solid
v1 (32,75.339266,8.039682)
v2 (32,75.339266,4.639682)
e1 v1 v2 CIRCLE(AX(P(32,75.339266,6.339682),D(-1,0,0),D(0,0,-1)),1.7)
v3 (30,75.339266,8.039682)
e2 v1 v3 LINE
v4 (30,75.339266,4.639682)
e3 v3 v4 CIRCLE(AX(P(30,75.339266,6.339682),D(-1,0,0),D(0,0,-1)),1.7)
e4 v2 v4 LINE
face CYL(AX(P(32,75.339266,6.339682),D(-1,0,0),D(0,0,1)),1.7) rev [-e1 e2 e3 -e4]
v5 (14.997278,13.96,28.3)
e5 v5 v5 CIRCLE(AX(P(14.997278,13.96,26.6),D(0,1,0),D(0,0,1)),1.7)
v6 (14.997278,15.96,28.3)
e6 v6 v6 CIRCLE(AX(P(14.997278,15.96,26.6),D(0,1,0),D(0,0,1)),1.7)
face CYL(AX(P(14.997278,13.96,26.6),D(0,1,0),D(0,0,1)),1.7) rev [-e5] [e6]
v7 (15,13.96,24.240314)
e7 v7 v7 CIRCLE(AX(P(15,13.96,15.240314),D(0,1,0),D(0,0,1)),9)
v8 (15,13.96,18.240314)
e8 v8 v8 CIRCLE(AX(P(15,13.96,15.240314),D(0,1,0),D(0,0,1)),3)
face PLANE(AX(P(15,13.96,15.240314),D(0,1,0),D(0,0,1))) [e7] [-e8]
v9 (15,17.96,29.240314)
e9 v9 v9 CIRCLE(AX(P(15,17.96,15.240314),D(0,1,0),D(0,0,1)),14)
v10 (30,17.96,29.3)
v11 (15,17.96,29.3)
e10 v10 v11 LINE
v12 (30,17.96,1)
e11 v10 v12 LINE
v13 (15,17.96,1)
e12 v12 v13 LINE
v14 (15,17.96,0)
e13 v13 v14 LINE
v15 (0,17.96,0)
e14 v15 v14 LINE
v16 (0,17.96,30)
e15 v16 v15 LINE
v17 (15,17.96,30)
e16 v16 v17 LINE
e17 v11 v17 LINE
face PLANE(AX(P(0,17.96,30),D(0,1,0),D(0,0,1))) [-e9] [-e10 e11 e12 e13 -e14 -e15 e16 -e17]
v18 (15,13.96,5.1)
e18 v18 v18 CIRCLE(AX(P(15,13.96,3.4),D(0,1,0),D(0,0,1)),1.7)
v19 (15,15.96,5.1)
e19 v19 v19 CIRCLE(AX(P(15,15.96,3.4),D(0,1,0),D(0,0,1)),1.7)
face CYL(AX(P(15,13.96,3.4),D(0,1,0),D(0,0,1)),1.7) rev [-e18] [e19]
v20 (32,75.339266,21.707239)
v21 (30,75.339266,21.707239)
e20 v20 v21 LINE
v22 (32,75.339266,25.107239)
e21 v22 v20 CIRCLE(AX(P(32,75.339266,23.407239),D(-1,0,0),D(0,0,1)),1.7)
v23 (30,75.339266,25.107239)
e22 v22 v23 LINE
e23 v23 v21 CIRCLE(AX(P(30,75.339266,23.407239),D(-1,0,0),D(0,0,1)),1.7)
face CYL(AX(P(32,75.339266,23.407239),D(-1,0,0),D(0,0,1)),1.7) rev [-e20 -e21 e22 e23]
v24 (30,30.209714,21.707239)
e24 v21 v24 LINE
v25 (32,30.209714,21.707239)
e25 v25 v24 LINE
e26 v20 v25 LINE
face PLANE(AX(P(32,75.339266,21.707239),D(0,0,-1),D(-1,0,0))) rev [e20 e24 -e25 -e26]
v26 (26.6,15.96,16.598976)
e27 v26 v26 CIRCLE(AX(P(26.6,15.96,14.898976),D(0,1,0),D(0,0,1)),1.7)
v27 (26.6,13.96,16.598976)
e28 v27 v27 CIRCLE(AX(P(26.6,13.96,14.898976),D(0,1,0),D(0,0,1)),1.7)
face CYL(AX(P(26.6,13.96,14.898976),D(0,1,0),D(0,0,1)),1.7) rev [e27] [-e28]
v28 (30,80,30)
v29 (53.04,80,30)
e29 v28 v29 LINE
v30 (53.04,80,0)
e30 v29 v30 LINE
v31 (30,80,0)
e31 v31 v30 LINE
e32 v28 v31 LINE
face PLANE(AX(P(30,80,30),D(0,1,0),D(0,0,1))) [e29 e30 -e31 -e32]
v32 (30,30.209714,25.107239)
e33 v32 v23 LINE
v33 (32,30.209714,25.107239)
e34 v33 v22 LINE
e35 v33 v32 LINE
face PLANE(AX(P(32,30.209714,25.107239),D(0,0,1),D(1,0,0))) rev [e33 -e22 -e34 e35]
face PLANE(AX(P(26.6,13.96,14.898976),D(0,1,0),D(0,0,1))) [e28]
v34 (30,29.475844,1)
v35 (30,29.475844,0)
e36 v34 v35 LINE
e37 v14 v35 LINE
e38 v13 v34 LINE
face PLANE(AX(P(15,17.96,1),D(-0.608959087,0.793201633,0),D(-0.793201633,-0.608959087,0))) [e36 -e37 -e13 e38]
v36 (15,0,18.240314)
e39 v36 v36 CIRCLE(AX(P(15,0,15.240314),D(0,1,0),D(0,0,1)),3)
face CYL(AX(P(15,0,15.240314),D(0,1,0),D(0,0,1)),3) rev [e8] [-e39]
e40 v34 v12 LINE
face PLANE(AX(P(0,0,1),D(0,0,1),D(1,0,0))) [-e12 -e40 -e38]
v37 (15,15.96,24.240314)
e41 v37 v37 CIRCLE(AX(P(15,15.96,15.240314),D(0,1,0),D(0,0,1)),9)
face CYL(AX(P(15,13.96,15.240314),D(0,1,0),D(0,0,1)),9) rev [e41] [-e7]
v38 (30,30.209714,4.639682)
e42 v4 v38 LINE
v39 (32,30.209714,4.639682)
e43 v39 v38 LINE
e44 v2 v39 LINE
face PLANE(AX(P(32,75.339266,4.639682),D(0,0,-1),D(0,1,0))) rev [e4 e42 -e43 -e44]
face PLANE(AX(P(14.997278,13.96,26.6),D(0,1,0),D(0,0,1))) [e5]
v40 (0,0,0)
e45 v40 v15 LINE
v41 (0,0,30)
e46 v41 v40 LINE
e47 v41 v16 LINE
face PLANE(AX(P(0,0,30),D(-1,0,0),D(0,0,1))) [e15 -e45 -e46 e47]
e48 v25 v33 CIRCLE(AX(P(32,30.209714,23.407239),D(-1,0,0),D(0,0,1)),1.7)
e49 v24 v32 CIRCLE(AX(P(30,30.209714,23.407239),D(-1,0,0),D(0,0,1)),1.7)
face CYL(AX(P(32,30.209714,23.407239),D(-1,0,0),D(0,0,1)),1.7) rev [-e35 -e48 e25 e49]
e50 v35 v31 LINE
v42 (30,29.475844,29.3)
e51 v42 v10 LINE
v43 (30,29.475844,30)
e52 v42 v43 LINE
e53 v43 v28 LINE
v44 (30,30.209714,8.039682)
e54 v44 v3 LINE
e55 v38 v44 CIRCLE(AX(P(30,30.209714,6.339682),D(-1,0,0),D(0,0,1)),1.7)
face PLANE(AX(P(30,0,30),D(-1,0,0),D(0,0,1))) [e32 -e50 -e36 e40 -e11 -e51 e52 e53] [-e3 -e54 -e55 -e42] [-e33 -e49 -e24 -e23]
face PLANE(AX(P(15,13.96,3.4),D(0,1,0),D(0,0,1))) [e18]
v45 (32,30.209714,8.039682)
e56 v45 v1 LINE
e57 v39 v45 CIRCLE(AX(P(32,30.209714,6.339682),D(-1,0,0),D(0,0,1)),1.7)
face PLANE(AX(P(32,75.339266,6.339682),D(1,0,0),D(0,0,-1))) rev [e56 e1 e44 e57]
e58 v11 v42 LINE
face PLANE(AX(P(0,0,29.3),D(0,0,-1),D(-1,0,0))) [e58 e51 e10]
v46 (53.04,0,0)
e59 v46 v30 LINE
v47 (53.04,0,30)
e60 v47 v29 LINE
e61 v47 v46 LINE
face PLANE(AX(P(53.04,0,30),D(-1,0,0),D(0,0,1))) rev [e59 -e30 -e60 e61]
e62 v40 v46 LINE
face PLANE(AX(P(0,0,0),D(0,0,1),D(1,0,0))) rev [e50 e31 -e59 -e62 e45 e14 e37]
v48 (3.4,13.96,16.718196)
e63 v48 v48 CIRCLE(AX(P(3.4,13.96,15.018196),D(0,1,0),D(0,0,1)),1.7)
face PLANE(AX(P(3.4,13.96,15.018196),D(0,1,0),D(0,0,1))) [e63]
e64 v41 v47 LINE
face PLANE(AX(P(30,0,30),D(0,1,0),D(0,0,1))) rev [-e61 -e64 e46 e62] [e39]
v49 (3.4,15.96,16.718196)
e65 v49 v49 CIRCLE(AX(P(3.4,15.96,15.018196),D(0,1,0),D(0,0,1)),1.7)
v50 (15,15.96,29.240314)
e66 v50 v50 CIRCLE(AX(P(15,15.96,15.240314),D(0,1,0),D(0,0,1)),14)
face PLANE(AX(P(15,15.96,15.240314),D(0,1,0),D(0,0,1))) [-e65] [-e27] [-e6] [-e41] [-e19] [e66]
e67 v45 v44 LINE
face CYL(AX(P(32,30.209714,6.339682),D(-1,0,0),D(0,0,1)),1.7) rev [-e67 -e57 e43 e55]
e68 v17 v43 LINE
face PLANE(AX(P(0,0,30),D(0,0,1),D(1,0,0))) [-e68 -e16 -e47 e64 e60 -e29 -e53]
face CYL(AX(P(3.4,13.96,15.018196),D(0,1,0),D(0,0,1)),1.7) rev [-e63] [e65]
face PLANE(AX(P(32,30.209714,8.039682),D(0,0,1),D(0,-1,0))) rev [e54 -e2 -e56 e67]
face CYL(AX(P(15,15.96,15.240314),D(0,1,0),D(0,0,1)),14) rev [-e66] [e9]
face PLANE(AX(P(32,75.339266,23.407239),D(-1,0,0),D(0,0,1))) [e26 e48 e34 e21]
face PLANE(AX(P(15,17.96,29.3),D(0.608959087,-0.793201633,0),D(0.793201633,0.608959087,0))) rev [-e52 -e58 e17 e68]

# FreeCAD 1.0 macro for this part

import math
import FreeCAD as App
import Part
import Sketcher
Q = App.Units.Quantity

doc = App.newDocument("Part")
params = doc.addObject("Spreadsheet::Sheet", "Params")
for row, (alias, value) in enumerate([
    ("sketch1_width", "30 mm"),
    ("sketch1_height", "80 mm"),
    ("sketch1_width2", "53.04 mm"),
    ("sketch1_height2", "17.96 mm"),
    ("pad1_length", "30 mm"),
    ("sketch2_diameter", "28 mm"),
    ("pocket1_length", "2 mm"),
    ("sketch3_diameter", "3.4 mm"),
    ("pocket2_length", "2 mm"),
    ("sketch4_diameter", "18 mm"),
    ("pocket3_length", "2 mm"),
    ("sketch5_diameter", "6 mm"),
    ("sketch6_radius", "1.7 mm"),
    ("pocket5_length", "2 mm"),
    ("sketch7_width", "15 mm"),
    ("pad2_length", "1 mm"),
    ("sketch8_length", "10 mm"),
    ("pad3_length", "0.7 mm"),
], start=1):
    params.set(f"A{row}", alias)
    params.set(f"B{row}", "=" + value)
    params.setAlias(f"B{row}", alias)

body = doc.addObject("PartDesign::Body", "Body")

sketch1 = body.newObject("Sketcher::SketchObject", "Sketch")
sketch1.AttachmentSupport = (doc.getObject("XY_Plane"), [""])
sketch1.MapMode = "FlatFace"
sketch1.addGeometry(Part.LineSegment(App.Vector(0, 17.96, 0), App.Vector(0, 0, 0)), False)
sketch1.addGeometry(Part.LineSegment(App.Vector(0, 0, 0), App.Vector(53.04, 0, 0)), False)
sketch1.addGeometry(Part.LineSegment(App.Vector(53.04, 0, 0), App.Vector(53.04, 80, 0)), False)
sketch1.addGeometry(Part.LineSegment(App.Vector(53.04, 80, 0), App.Vector(30, 80, 0)), False)
sketch1.addGeometry(Part.LineSegment(App.Vector(30, 80, 0), App.Vector(30, 17.96, 0)), False)
sketch1.addGeometry(Part.LineSegment(App.Vector(30, 17.96, 0), App.Vector(0, 17.96, 0)), False)
sketch1.addConstraint(Sketcher.Constraint("Coincident", 0, 2, 1, 1))
sketch1.addConstraint(Sketcher.Constraint("Coincident", 1, 2, 2, 1))
sketch1.addConstraint(Sketcher.Constraint("Coincident", 2, 2, 3, 1))
sketch1.addConstraint(Sketcher.Constraint("Coincident", 3, 2, 4, 1))
sketch1.addConstraint(Sketcher.Constraint("Coincident", 4, 2, 5, 1))
sketch1.addConstraint(Sketcher.Constraint("Coincident", 5, 2, 0, 1))
sketch1.addConstraint(Sketcher.Constraint("Vertical", 0))
sketch1.addConstraint(Sketcher.Constraint("Horizontal", 1))
sketch1.addConstraint(Sketcher.Constraint("Vertical", 2))
sketch1.addConstraint(Sketcher.Constraint("Horizontal", 3))
sketch1.addConstraint(Sketcher.Constraint("Vertical", 4))
sketch1.addConstraint(Sketcher.Constraint("Horizontal", 5))
sketch1.addConstraint(Sketcher.Constraint("Coincident", 0, 2, -1, 1))
sketch1.addConstraint(Sketcher.Constraint("DistanceX", 5, 2, 5, 1, Q("30 mm")))
sketch1.addConstraint(Sketcher.Constraint("DistanceY", 2, 1, 2, 2, Q("80 mm")))
sketch1.addConstraint(Sketcher.Constraint("DistanceX", 1, 1, 1, 2, Q("53.04 mm")))
sketch1.addConstraint(Sketcher.Constraint("DistanceY", 0, 2, 0, 1, Q("17.96 mm")))
sketch1.setExpression("Constraints[13]", "Params.sketch1_width")
sketch1.setExpression("Constraints[14]", "Params.sketch1_height")
sketch1.setExpression("Constraints[15]", "Params.sketch1_width2")
sketch1.setExpression("Constraints[16]", "Params.sketch1_height2")
pad1 = body.newObject("PartDesign::Pad", "Pad")
pad1.Profile = sketch1
pad1.setExpression("Length", "Params.pad1_length")

sketch2 = body.newObject("Sketcher::SketchObject", "Sketch001")
sketch2.AttachmentSupport = (doc.getObject("XZ_Plane"), [""])
sketch2.MapMode = "FlatFace"
sketch2.AttachmentOffset = App.Placement(App.Vector(0, 0, -17.96), App.Rotation())
sketch2.addGeometry(Part.Circle(App.Vector(15, 15.240314, 0), App.Vector(0, 0, 1), 14), False)
sketch2.addConstraint(Sketcher.Constraint("Diameter", 0, Q("28 mm")))
sketch2.addConstraint(Sketcher.Constraint("DistanceX", -1, 1, 0, 3, Q("15 mm")))
sketch2.addConstraint(Sketcher.Constraint("DistanceY", -1, 1, 0, 3, Q("15.240314 mm")))
sketch2.setExpression("Constraints[0]", "Params.sketch2_diameter")
pocket1 = body.newObject("PartDesign::Pocket", "Pocket")
pocket1.Profile = sketch2
pocket1.setExpression("Length", "Params.pocket1_length")
pocket1.Reversed = True

sketch3 = body.newObject("Sketcher::SketchObject", "Sketch002")
sketch3.AttachmentSupport = (doc.getObject("XZ_Plane"), [""])
sketch3.MapMode = "FlatFace"
sketch3.AttachmentOffset = App.Placement(App.Vector(0, 0, -15.96), App.Rotation())
sketch3.addGeometry(Part.Circle(App.Vector(15, 3.4, 0), App.Vector(0, 0, 1), 1.7), False)
sketch3.addGeometry(Part.Circle(App.Vector(26.6, 14.898976, 0), App.Vector(0, 0, 1), 1.7), False)
sketch3.addGeometry(Part.Circle(App.Vector(14.997278, 26.6, 0), App.Vector(0, 0, 1), 1.7), False)
sketch3.addGeometry(Part.Circle(App.Vector(3.4, 15.018196, 0), App.Vector(0, 0, 1), 1.7), False)
sketch3.addConstraint(Sketcher.Constraint("Equal", 0, 1))
sketch3.addConstraint(Sketcher.Constraint("Equal", 1, 2))
sketch3.addConstraint(Sketcher.Constraint("Equal", 2, 3))
sketch3.addConstraint(Sketcher.Constraint("Diameter", 0, Q("3.4 mm")))
sketch3.addConstraint(Sketcher.Constraint("DistanceX", -1, 1, 0, 3, Q("15 mm")))
sketch3.addConstraint(Sketcher.Constraint("DistanceY", -1, 1, 0, 3, Q("3.4 mm")))
sketch3.addConstraint(Sketcher.Constraint("DistanceX", -1, 1, 1, 3, Q("26.6 mm")))
sketch3.addConstraint(Sketcher.Constraint("DistanceY", -1, 1, 2, 3, Q("26.6 mm")))
sketch3.addConstraint(Sketcher.Constraint("DistanceX", -1, 1, 3, 3, Q("3.4 mm")))
sketch3.addConstraint(Sketcher.Constraint("DistanceY", 1, 3, 3, 3, Q("0.11922 mm")))
sketch3.addConstraint(Sketcher.Constraint("DistanceY", -1, 1, 1, 3, Q("14.898976 mm")))
sketch3.addConstraint(Sketcher.Constraint("DistanceX", -1, 1, 2, 3, Q("14.997278 mm")))
sketch3.setExpression("Constraints[3]", "Params.sketch3_diameter")
pocket2 = body.newObject("PartDesign::Pocket", "Pocket001")
pocket2.Profile = sketch3
pocket2.setExpression("Length", "Params.pocket2_length")
pocket2.Reversed = True

sketch4 = body.newObject("Sketcher::SketchObject", "Sketch003")
sketch4.AttachmentSupport = (doc.getObject("XZ_Plane"), [""])
sketch4.MapMode = "FlatFace"
sketch4.AttachmentOffset = App.Placement(App.Vector(0, 0, -15.96), App.Rotation())
sketch4.addGeometry(Part.Circle(App.Vector(15, 15.240314, 0), App.Vector(0, 0, 1), 9), False)
sketch4.addConstraint(Sketcher.Constraint("Diameter", 0, Q("18 mm")))
sketch4.addConstraint(Sketcher.Constraint("DistanceX", -1, 1, 0, 3, Q("15 mm")))
sketch4.addConstraint(Sketcher.Constraint("DistanceY", -1, 1, 0, 3, Q("15.240314 mm")))
sketch4.setExpression("Constraints[0]", "Params.sketch4_diameter")
pocket3 = body.newObject("PartDesign::Pocket", "Pocket002")
pocket3.Profile = sketch4
pocket3.setExpression("Length", "Params.pocket3_length")
pocket3.Reversed = True

sketch5 = body.newObject("Sketcher::SketchObject", "Sketch004")
sketch5.AttachmentSupport = (doc.getObject("XZ_Plane"), [""])
sketch5.MapMode = "FlatFace"
sketch5.AttachmentOffset = App.Placement(App.Vector(0, 0, -13.96), App.Rotation())
sketch5.addGeometry(Part.Circle(App.Vector(15, 15.240314, 0), App.Vector(0, 0, 1), 3), False)
sketch5.addConstraint(Sketcher.Constraint("Diameter", 0, Q("6 mm")))
sketch5.addConstraint(Sketcher.Constraint("DistanceX", -1, 1, 0, 3, Q("15 mm")))
sketch5.addConstraint(Sketcher.Constraint("DistanceY", -1, 1, 0, 3, Q("15.240314 mm")))
sketch5.setExpression("Constraints[0]", "Params.sketch5_diameter")
pocket4 = body.newObject("PartDesign::Pocket", "Pocket003")
pocket4.Profile = sketch5
pocket4.Type = "ThroughAll"
pocket4.Reversed = True

sketch6 = body.newObject("Sketcher::SketchObject", "Sketch005")
sketch6.AttachmentSupport = (doc.getObject("YZ_Plane"), [""])
sketch6.MapMode = "FlatFace"
sketch6.AttachmentOffset = App.Placement(App.Vector(0, 0, 30), App.Rotation())
sketch6.addGeometry(Part.LineSegment(App.Vector(75.339266, 4.639682, 0), App.Vector(30.209714, 4.639682, 0)), False)
sketch6.addGeometry(Part.ArcOfCircle(Part.Circle(App.Vector(30.209714, 6.339682, 0), App.Vector(0, 0, 1), 1.7), math.radians(90), math.radians(270)), False)
sketch6.addGeometry(Part.LineSegment(App.Vector(30.209714, 8.039682, 0), App.Vector(75.339266, 8.039682, 0)), False)
sketch6.addGeometry(Part.ArcOfCircle(Part.Circle(App.Vector(75.339266, 6.339682, 0), App.Vector(0, 0, 1), 1.7), math.radians(-90), math.radians(90)), False)
sketch6.addGeometry(Part.LineSegment(App.Vector(75.339266, 21.707239, 0), App.Vector(30.209714, 21.707239, 0)), False)
sketch6.addGeometry(Part.ArcOfCircle(Part.Circle(App.Vector(30.209714, 23.407239, 0), App.Vector(0, 0, 1), 1.7), math.radians(90), math.radians(270)), False)
sketch6.addGeometry(Part.LineSegment(App.Vector(30.209714, 25.107239, 0), App.Vector(75.339266, 25.107239, 0)), False)
sketch6.addGeometry(Part.ArcOfCircle(Part.Circle(App.Vector(75.339266, 23.407239, 0), App.Vector(0, 0, 1), 1.7), math.radians(-90), math.radians(90)), False)
sketch6.addConstraint(Sketcher.Constraint("Tangent", 0, 2, 1, 2))
sketch6.addConstraint(Sketcher.Constraint("Tangent", 1, 1, 2, 1))
sketch6.addConstraint(Sketcher.Constraint("Tangent", 2, 2, 3, 2))
sketch6.addConstraint(Sketcher.Constraint("Tangent", 3, 1, 0, 1))
sketch6.addConstraint(Sketcher.Constraint("Tangent", 4, 2, 5, 2))
sketch6.addConstraint(Sketcher.Constraint("Tangent", 5, 1, 6, 1))
sketch6.addConstraint(Sketcher.Constraint("Tangent", 6, 2, 7, 2))
sketch6.addConstraint(Sketcher.Constraint("Tangent", 7, 1, 4, 1))
sketch6.addConstraint(Sketcher.Constraint("Horizontal", 0))
sketch6.addConstraint(Sketcher.Constraint("Horizontal", 2))
sketch6.addConstraint(Sketcher.Constraint("Horizontal", 4))
sketch6.addConstraint(Sketcher.Constraint("Horizontal", 6))
sketch6.addConstraint(Sketcher.Constraint("Equal", 3, 5))
sketch6.addConstraint(Sketcher.Constraint("Vertical", 1, 3, 5, 3))
sketch6.addConstraint(Sketcher.Constraint("Vertical", 3, 3, 7, 3))
sketch6.addConstraint(Sketcher.Constraint("Radius", 1, Q("1.7 mm")))
sketch6.addConstraint(Sketcher.Constraint("DistanceX", 0, 2, 0, 1, Q("45.129552 mm")))
sketch6.addConstraint(Sketcher.Constraint("DistanceY", -1, 1, 1, 3, Q("6.339682 mm")))
sketch6.addConstraint(Sketcher.Constraint("DistanceY", -1, 1, 5, 3, Q("23.407239 mm")))
sketch6.addConstraint(Sketcher.Constraint("DistanceX", -1, 1, 1, 3, Q("30.209714 mm")))
sketch6.setExpression("Constraints[15]", "Params.sketch6_radius")
pocket5 = body.newObject("PartDesign::Pocket", "Pocket004")
pocket5.Profile = sketch6
pocket5.setExpression("Length", "Params.pocket5_length")
pocket5.Reversed = True

sketch7 = body.newObject("Sketcher::SketchObject", "Sketch006")
sketch7.AttachmentSupport = (doc.getObject("XY_Plane"), [""])
sketch7.MapMode = "FlatFace"
sketch7.addGeometry(Part.LineSegment(App.Vector(15, 17.96, 0), App.Vector(30, 29.475844, 0)), False)
sketch7.addGeometry(Part.LineSegment(App.Vector(30, 29.475844, 0), App.Vector(30, 17.96, 0)), False)
sketch7.addGeometry(Part.LineSegment(App.Vector(30, 17.96, 0), App.Vector(15, 17.96, 0)), False)
sketch7.addConstraint(Sketcher.Constraint("Coincident", 0, 2, 1, 1))
sketch7.addConstraint(Sketcher.Constraint("Coincident", 1, 2, 2, 1))
sketch7.addConstraint(Sketcher.Constraint("Coincident", 2, 2, 0, 1))
sketch7.addConstraint(Sketcher.Constraint("Vertical", 1))
sketch7.addConstraint(Sketcher.Constraint("Horizontal", 2))
sketch7.addConstraint(Sketcher.Constraint("DistanceX", 2, 2, 2, 1, Q("15 mm")))
sketch7.addConstraint(Sketcher.Constraint("DistanceX", -1, 1, 0, 2, Q("30 mm")))
sketch7.addConstraint(Sketcher.Constraint("DistanceY", -1, 1, 1, 2, Q("17.96 mm")))
sketch7.addConstraint(Sketcher.Constraint("DistanceY", 1, 2, 1, 1, Q("11.515844 mm")))
sketch7.setExpression("Constraints[5]", "Params.sketch7_width")
pad2 = body.newObject("PartDesign::Pad", "Pad001")
pad2.Profile = sketch7
pad2.setExpression("Length", "Params.pad2_length")

sketch8 = body.newObject("Sketcher::SketchObject", "Sketch007")
sketch8.AttachmentSupport = (doc.getObject("XY_Plane"), [""])
sketch8.MapMode = "FlatFace"
sketch8.AttachmentOffset = App.Placement(App.Vector(0, 0, 30), App.Rotation())
sketch8.addGeometry(Part.LineSegment(App.Vector(30, 29.475844, 0), App.Vector(15, 17.96, 0)), False)
sketch8.addGeometry(Part.LineSegment(App.Vector(15, 17.96, 0), App.Vector(21.089591, 10.027984, 0)), False)
sketch8.addGeometry(Part.LineSegment(App.Vector(21.089591, 10.027984, 0), App.Vector(36.089591, 21.543828, 0)), False)
sketch8.addGeometry(Part.LineSegment(App.Vector(36.089591, 21.543828, 0), App.Vector(30, 29.475844, 0)), False)
sketch8.addConstraint(Sketcher.Constraint("Coincident", 0, 2, 1, 1))
sketch8.addConstraint(Sketcher.Constraint("Coincident", 1, 2, 2, 1))
sketch8.addConstraint(Sketcher.Constraint("Coincident", 2, 2, 3, 1))
sketch8.addConstraint(Sketcher.Constraint("Coincident", 3, 2, 0, 1))
sketch8.addConstraint(Sketcher.Constraint("Perpendicular", 0, 1))
sketch8.addConstraint(Sketcher.Constraint("Perpendicular", 1, 2))
sketch8.addConstraint(Sketcher.Constraint("Perpendicular", 2, 3))
sketch8.addConstraint(Sketcher.Constraint("Distance", 1, Q("10 mm")))
sketch8.addConstraint(Sketcher.Constraint("DistanceX", -1, 1, 0, 2, Q("15 mm")))
sketch8.addConstraint(Sketcher.Constraint("DistanceX", -1, 1, 3, 2, Q("30 mm")))
sketch8.addConstraint(Sketcher.Constraint("DistanceY", -1, 1, 0, 2, Q("17.96 mm")))
sketch8.addConstraint(Sketcher.Constraint("DistanceX", -1, 1, 1, 2, Q("21.089591 mm")))
sketch8.setExpression("Constraints[7]", "Params.sketch8_length")
pad3 = body.newObject("PartDesign::Pad", "Pad002")
pad3.Profile = sketch8
pad3.setExpression("Length", "Params.pad3_length")
pad3.Reversed = True

doc.recompute()
